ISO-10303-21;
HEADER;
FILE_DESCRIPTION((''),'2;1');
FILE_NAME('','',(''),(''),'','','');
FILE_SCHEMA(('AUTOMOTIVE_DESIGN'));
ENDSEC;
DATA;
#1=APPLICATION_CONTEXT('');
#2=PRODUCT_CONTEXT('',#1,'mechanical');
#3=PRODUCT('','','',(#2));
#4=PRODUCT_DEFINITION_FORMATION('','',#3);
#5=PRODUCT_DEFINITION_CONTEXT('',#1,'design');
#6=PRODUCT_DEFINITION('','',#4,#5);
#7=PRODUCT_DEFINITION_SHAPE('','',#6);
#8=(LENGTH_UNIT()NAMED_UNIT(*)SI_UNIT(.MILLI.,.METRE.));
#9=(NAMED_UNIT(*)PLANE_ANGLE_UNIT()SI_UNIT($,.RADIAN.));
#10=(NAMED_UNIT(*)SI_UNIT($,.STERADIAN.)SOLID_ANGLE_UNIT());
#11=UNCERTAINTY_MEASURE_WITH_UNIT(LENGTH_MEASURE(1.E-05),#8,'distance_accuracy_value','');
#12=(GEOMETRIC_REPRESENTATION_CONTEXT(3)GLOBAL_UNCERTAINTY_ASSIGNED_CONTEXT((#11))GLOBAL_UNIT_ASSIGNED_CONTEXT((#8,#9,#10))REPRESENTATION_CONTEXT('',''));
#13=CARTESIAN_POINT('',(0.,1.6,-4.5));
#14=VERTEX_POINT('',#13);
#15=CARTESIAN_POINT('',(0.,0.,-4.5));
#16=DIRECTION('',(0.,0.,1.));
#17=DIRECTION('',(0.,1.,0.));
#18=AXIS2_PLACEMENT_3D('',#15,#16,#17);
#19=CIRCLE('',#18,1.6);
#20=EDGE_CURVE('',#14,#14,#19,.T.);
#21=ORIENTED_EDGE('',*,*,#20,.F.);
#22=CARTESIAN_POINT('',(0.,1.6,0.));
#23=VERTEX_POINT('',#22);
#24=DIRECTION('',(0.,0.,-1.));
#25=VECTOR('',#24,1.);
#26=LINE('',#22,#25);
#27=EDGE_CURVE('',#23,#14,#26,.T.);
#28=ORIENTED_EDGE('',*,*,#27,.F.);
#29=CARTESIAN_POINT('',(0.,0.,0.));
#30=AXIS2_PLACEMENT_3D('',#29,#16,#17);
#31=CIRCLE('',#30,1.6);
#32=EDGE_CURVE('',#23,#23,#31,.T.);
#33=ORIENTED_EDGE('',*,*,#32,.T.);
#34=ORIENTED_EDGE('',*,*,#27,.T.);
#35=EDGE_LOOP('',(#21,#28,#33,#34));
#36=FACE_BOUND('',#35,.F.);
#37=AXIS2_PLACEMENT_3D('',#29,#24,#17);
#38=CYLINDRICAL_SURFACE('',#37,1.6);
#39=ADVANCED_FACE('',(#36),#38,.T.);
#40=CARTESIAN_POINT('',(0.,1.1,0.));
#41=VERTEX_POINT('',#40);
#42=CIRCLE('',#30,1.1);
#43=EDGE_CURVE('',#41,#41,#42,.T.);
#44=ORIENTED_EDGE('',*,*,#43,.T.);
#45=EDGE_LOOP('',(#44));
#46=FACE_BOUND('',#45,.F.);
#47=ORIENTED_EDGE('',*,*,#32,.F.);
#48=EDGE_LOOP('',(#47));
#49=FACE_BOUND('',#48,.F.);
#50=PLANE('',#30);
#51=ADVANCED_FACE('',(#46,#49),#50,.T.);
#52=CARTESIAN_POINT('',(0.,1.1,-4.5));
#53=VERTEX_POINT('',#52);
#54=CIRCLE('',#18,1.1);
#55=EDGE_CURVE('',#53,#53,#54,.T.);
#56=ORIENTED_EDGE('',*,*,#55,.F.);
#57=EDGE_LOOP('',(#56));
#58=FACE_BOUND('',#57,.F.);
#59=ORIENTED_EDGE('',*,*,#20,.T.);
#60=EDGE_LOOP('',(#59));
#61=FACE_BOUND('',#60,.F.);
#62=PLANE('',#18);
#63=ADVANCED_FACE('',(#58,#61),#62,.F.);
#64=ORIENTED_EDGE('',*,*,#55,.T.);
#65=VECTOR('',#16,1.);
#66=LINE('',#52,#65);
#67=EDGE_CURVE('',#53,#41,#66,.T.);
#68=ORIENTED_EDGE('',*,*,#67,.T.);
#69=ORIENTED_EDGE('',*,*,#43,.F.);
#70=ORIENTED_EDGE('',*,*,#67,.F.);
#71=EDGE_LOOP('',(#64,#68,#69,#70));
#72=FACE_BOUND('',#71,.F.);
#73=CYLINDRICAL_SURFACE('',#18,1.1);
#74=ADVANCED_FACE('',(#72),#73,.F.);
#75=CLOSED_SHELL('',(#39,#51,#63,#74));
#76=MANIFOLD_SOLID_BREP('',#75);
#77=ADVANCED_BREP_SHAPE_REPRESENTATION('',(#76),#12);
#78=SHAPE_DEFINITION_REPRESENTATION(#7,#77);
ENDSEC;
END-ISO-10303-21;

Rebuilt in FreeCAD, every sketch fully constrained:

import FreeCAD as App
import Part
import Sketcher

V = App.Vector
Q = App.Units.Quantity


def add_polygon(sketch, points):
    """Adds a closed chain of lines whose ends are joined by coincident constraints."""
    first, n = sketch.GeometryCount, len(points)
    for a, b in zip(points, points[1:] + points[:1]):
        sketch.addGeometry(Part.LineSegment(App.Vector(*a, 0), App.Vector(*b, 0)), False)
    for i in range(n):
        sketch.addConstraint(Sketcher.Constraint("Coincident", first + i, 2, first + (i + 1) % n, 1))

doc = App.newDocument("Part")
params = doc.addObject("Spreadsheet::Sheet", "Params")
for row, (alias, value) in enumerate([
    ("sketch1_height", "4.5 mm"),
    ("revolution_angle", "360 deg"),
], start=1):
    params.set(f"A{row}", alias)
    params.set(f"B{row}", "=" + value)
    params.setAlias(f"B{row}", alias)

body = doc.addObject("PartDesign::Body", "Body")

# Sketch on YZ plane
sketch1 = body.newObject("Sketcher::SketchObject", "Sketch")
sketch1.AttachmentSupport = (doc.getObject("YZ_Plane"), [""])
sketch1.MapMode = "FlatFace"
add_polygon(sketch1, [(1.6, 0), (1.1, 0), (1.1, -4.5), (1.6, -4.5)])  # lines 0-3
sketch1.addConstraint(Sketcher.Constraint("Horizontal", 0))
sketch1.addConstraint(Sketcher.Constraint("Vertical", 1))
sketch1.addConstraint(Sketcher.Constraint("Horizontal", 2))
sketch1.addConstraint(Sketcher.Constraint("Vertical", 3))
sketch1.addConstraint(Sketcher.Constraint("PointOnObject", 0, 2, -1))
sketch1.addConstraint(Sketcher.Constraint("DistanceY", 1, 2, 1, 1, Q("4.5 mm")))
sketch1.addConstraint(Sketcher.Constraint("DistanceX", -1, 1, 0, 2, Q("1.1 mm")))
sketch1.addConstraint(Sketcher.Constraint("DistanceX", -1, 1, 2, 2, Q("1.6 mm")))
sketch1.setExpression("Constraints[9]", "Params.sketch1_height")
revolution = body.newObject("PartDesign::Revolution", "Revolution")
revolution.Profile = sketch1
revolution.ReferenceAxis = (sketch1, ["V_Axis"])
revolution.setExpression("Angle", "Params.revolution_angle")

doc.recompute()
